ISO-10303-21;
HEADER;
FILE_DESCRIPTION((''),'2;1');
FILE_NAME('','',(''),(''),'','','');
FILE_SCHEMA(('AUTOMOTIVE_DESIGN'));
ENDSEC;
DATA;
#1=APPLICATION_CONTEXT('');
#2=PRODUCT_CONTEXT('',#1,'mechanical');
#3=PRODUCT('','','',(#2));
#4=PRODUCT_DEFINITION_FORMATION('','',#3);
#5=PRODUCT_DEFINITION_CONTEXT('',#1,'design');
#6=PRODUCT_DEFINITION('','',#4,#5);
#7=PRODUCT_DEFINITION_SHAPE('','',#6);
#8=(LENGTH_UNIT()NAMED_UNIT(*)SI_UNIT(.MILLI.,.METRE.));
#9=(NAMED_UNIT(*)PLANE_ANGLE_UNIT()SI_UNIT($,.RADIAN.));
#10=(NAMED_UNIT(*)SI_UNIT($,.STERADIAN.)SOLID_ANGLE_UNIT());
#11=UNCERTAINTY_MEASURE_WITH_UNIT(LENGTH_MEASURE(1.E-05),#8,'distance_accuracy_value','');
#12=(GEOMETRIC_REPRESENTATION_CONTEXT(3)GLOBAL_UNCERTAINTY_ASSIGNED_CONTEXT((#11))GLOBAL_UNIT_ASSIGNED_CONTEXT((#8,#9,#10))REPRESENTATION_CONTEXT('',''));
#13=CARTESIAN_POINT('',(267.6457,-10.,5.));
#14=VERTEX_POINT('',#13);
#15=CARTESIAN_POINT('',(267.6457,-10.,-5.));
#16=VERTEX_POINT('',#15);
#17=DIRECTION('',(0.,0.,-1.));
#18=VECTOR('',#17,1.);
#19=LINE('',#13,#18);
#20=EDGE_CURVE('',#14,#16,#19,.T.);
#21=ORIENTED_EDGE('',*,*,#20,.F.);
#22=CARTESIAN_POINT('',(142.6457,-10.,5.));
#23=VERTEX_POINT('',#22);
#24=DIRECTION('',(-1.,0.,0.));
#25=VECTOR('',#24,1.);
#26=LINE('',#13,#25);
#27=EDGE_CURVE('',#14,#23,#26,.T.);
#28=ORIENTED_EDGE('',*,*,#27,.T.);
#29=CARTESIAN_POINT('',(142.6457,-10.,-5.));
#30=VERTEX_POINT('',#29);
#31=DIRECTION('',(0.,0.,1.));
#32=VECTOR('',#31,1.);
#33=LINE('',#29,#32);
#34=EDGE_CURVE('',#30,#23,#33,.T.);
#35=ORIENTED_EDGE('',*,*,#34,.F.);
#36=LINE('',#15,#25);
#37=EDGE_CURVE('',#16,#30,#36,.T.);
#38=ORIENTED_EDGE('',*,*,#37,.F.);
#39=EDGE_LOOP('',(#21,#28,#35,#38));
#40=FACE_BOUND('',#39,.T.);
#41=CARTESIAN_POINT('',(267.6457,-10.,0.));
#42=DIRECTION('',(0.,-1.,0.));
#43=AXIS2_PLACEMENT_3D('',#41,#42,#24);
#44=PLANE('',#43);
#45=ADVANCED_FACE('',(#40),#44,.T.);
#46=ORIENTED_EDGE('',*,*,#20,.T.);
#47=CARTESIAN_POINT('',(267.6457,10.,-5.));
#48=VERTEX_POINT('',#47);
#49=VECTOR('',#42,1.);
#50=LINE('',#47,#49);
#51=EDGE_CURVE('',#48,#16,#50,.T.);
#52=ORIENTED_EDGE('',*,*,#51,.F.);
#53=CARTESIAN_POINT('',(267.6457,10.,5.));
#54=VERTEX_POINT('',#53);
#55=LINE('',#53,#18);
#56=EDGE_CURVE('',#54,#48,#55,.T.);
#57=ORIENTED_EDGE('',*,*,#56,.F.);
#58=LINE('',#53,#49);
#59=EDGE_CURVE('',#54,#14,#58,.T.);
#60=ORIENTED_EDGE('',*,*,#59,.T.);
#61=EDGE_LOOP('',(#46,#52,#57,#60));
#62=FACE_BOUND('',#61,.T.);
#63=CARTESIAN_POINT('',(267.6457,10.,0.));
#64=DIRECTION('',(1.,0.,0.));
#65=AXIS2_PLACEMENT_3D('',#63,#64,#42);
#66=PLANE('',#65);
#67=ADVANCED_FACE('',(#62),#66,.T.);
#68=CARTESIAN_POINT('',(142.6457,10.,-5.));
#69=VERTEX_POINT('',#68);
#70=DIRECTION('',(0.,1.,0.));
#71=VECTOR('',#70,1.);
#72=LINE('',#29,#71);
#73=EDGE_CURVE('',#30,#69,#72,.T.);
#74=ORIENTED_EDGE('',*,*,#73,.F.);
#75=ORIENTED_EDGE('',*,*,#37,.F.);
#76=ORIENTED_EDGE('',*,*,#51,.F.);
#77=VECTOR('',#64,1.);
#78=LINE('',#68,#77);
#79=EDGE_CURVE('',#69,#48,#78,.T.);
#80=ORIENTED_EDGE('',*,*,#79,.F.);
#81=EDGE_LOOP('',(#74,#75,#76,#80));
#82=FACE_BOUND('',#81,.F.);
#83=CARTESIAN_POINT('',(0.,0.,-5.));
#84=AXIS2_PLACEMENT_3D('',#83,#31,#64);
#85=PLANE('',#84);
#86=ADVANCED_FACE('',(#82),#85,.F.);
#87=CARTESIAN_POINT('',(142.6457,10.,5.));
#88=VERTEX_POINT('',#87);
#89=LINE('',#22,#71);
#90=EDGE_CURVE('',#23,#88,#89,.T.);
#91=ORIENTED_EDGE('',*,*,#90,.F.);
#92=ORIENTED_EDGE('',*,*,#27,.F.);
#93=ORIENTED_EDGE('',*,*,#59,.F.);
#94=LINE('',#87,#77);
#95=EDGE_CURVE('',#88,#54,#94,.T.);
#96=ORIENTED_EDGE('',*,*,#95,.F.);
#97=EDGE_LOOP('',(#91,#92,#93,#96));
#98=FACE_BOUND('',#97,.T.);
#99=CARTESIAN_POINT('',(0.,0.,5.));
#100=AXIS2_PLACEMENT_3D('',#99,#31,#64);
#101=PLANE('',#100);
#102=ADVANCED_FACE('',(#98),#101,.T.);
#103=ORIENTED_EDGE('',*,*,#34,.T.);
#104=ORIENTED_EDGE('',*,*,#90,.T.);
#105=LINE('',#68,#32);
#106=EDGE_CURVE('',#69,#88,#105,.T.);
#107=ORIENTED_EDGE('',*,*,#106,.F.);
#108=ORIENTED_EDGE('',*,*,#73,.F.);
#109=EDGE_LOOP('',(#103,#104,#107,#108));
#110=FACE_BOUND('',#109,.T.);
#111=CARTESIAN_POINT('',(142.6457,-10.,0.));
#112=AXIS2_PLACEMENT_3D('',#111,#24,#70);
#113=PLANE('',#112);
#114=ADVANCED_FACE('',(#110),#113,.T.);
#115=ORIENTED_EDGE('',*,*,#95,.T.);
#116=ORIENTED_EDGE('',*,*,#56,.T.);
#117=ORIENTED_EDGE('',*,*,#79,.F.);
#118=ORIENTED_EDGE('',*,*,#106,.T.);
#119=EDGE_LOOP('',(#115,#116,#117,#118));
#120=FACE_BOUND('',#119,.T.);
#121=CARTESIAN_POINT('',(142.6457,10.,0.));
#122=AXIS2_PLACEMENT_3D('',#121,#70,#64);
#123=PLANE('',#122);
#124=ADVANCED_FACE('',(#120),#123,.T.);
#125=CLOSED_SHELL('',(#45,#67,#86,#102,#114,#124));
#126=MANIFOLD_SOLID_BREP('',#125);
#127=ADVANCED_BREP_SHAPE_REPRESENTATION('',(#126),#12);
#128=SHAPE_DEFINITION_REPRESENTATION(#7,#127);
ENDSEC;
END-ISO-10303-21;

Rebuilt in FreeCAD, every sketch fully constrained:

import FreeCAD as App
import Part
import Sketcher

V = App.Vector


def add_polygon(sketch, points):
    """Adds a closed chain of lines whose ends are joined by coincident constraints."""
    first, n = sketch.GeometryCount, len(points)
    for a, b in zip(points, points[1:] + points[:1]):
        sketch.addGeometry(Part.LineSegment(App.Vector(*a, 0), App.Vector(*b, 0)), False)
    for i in range(n):
        sketch.addConstraint(Sketcher.Constraint("Coincident", first + i, 2, first + (i + 1) % n, 1))

doc = App.newDocument("Part")
params = doc.addObject("Spreadsheet::Sheet", "Params")
for row, (alias, value) in enumerate([
    ("sketch1_width", "125 mm"),
    ("sketch1_height", "20 mm"),
    ("pad1_length", "10 mm"),
], start=1):
    params.set(f"A{row}", alias)
    params.set(f"B{row}", "=" + value)
    params.setAlias(f"B{row}", alias)

body = doc.addObject("PartDesign::Body", "Body")

sketch1 = body.newObject("Sketcher::SketchObject", "Sketch")
sketch1.AttachmentSupport = (doc.getObject("XY_Plane"), [""])
sketch1.MapMode = "FlatFace"
add_polygon(sketch1, [(267.6457, 10), (142.6457, 10), (142.6457, -10), (267.6457, -10)])
sketch1.addConstraint([
    Sketcher.Constraint("Horizontal", 0),
    Sketcher.Constraint("Vertical", 1),
    Sketcher.Constraint("Horizontal", 2),
    Sketcher.Constraint("Vertical", 3),
    Sketcher.Constraint("DistanceX", 0, 2, 0, 1, 125.0),
    Sketcher.Constraint("DistanceY", 1, 2, 1, 1, 20.0),
    Sketcher.Constraint("DistanceY", -1, 1, 0, 2, 10.0),
    Sketcher.Constraint("DistanceX", -1, 1, 2, 2, 267.6457),
])
sketch1.setExpression("Constraints[8]", "Params.sketch1_width")
sketch1.setExpression("Constraints[9]", "Params.sketch1_height")
pad1 = body.newObject("PartDesign::Pad", "Pad")
pad1.Profile = sketch1
pad1.setExpression("Length", "Params.pad1_length")
pad1.Midplane = True

doc.recompute()
